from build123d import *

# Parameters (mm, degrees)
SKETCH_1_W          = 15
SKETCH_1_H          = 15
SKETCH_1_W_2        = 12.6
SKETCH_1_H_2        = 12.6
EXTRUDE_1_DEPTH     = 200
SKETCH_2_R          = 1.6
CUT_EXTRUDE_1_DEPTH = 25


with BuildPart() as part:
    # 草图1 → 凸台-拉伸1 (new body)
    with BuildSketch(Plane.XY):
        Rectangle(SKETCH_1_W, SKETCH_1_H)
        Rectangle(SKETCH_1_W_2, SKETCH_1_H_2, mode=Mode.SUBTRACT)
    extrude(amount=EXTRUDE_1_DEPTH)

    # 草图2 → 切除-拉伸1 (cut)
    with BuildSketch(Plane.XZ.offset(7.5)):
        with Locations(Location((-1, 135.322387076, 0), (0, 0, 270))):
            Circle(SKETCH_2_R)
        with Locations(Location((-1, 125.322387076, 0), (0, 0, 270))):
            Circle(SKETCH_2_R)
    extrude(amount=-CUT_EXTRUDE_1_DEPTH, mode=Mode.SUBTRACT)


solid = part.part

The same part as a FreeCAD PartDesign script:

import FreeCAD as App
import Part
import Sketcher
Q = App.Units.Quantity

doc = App.newDocument("Part")
body = doc.addObject("PartDesign::Body", "Body")

sketch1 = body.newObject("Sketcher::SketchObject", "Sketch")
sketch1.AttachmentSupport = (doc.getObject("XY_Plane"), [""])
sketch1.MapMode = "FlatFace"
sketch1.addGeometry([
    Part.LineSegment(App.Vector(-7.5, 7.5, 0), App.Vector(-7.5, -7.5, 0)),
    Part.LineSegment(App.Vector(-7.5, -7.5, 0), App.Vector(7.5, -7.5, 0)),
    Part.LineSegment(App.Vector(7.5, -7.5, 0), App.Vector(7.5, 7.5, 0)),
    Part.LineSegment(App.Vector(7.5, 7.5, 0), App.Vector(-7.5, 7.5, 0)),
    Part.LineSegment(App.Vector(6.3, -6.3, 0), App.Vector(-6.3, -6.3, 0)),
    Part.LineSegment(App.Vector(-6.3, -6.3, 0), App.Vector(-6.3, 6.3, 0)),
    Part.LineSegment(App.Vector(-6.3, 6.3, 0), App.Vector(6.3, 6.3, 0)),
    Part.LineSegment(App.Vector(6.3, 6.3, 0), App.Vector(6.3, -6.3, 0)),
], False)
sketch1.addConstraint([
    Sketcher.Constraint("Coincident", 0, 2, 1, 1),
    Sketcher.Constraint("Coincident", 1, 2, 2, 1),
    Sketcher.Constraint("Coincident", 2, 2, 3, 1),
    Sketcher.Constraint("Coincident", 3, 2, 0, 1),
    Sketcher.Constraint("Coincident", 4, 2, 5, 1),
    Sketcher.Constraint("Coincident", 5, 2, 6, 1),
    Sketcher.Constraint("Coincident", 6, 2, 7, 1),
    Sketcher.Constraint("Coincident", 7, 2, 4, 1),
    Sketcher.Constraint("Vertical", 0),
    Sketcher.Constraint("Horizontal", 1),
    Sketcher.Constraint("Vertical", 2),
    Sketcher.Constraint("Horizontal", 3),
    Sketcher.Constraint("Horizontal", 4),
    Sketcher.Constraint("Vertical", 5),
    Sketcher.Constraint("Horizontal", 6),
    Sketcher.Constraint("Vertical", 7),
    Sketcher.Constraint("Symmetric", 0, 2, 2, 2, -1, 1),
    Sketcher.Constraint("Symmetric", 4, 2, 6, 2, -1, 1),
    Sketcher.Constraint("Equal", 3, 0),
    Sketcher.Constraint("Equal", 6, 5),
    Sketcher.Constraint("DistanceX", 1, 1, 1, 2, Q("15 mm")),
    Sketcher.Constraint("DistanceX", 4, 2, 4, 1, Q("12.6 mm")),
])
pad1 = body.newObject("PartDesign::Pad", "Pad")
pad1.Profile = sketch1
pad1.Length = 200

sketch2 = body.newObject("Sketcher::SketchObject", "Sketch001")
sketch2.AttachmentSupport = (doc.getObject("XZ_Plane"), [""])
sketch2.MapMode = "FlatFace"
sketch2.AttachmentOffset = App.Placement(App.Vector(0, 0, 7.5), App.Rotation())
sketch2.addGeometry([
    Part.Circle(App.Vector(-1, 135.322387, 0), App.Vector(0, 0, 1), 1.6),
    Part.Circle(App.Vector(-1, 125.322387, 0), App.Vector(0, 0, 1), 1.6),
], False)
sketch2.addConstraint([
    Sketcher.Constraint("Equal", 0, 1),
    Sketcher.Constraint("Vertical", 0, 3, 1, 3),
    Sketcher.Constraint("Diameter", 0, Q("3.2 mm")),
    Sketcher.Constraint("DistanceX", 0, 3, -1, 1, Q("1 mm")),
    Sketcher.Constraint("DistanceY", 1, 3, 0, 3, Q("10 mm")),
    Sketcher.Constraint("DistanceY", -1, 1, 0, 3, Q("135.322387 mm")),
])
pocket1 = body.newObject("PartDesign::Pocket", "Pocket")
pocket1.Profile = sketch2
pocket1.Length = 25

doc.recompute()
